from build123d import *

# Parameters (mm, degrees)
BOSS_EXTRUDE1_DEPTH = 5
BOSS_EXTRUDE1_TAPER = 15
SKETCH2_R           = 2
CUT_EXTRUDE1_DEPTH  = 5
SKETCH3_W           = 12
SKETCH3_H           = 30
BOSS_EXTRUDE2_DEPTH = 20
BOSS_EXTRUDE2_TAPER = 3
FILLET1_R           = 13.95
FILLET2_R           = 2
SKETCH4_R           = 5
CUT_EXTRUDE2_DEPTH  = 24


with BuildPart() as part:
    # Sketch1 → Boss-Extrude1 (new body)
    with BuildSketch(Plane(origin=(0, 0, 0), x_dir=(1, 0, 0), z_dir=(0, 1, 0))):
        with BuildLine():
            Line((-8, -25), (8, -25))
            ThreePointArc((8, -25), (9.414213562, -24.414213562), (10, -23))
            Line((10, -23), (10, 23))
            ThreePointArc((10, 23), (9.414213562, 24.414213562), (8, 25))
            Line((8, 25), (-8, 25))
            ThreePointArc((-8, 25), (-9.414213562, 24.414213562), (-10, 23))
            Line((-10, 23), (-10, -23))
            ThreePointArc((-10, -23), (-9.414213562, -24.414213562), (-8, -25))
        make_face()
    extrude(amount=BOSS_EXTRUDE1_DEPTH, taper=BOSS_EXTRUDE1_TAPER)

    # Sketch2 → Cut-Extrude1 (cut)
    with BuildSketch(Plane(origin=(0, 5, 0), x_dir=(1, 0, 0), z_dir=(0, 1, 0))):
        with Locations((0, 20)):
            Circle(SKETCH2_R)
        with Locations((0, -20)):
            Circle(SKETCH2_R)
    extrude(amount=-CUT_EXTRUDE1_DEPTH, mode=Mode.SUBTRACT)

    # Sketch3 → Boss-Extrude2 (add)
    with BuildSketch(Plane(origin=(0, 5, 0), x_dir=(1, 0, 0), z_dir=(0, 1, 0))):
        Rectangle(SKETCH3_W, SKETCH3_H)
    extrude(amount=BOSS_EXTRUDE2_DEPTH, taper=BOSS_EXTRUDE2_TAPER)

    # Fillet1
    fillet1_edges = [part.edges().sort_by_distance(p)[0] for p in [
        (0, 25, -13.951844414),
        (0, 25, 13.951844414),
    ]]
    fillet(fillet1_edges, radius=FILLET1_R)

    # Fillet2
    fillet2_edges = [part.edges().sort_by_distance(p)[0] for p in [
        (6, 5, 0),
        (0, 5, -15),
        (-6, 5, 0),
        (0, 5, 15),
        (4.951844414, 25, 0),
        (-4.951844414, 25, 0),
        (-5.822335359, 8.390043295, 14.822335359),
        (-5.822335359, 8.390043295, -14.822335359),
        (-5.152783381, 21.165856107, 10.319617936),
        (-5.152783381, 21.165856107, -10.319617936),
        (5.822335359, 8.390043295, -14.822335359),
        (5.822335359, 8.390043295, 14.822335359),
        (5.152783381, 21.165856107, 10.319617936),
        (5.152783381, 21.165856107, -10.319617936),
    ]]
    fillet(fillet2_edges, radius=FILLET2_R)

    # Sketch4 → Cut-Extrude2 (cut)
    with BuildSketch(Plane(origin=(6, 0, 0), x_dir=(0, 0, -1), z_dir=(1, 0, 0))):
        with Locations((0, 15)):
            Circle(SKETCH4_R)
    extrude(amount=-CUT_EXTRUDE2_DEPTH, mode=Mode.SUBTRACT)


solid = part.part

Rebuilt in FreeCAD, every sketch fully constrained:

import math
import FreeCAD as App
import Part
import Sketcher
from FreeCAD import Vector
Q = App.Units.Quantity


def edges_at(feature, points):
    """Names of the edges that pass closest to the given points."""
    edges = feature.Shape.Edges
    near = lambda p: min(range(len(edges)), key=lambda i: edges[i].distToShape(Part.Vertex(*p))[0])
    return sorted({f"Edge{near(p) + 1}" for p in points})


def add_polygon(sketch, points):
    """Adds a closed chain of lines whose ends are joined by coincident constraints."""
    first, n = sketch.GeometryCount, len(points)
    for a, b in zip(points, points[1:] + points[:1]):
        sketch.addGeometry(Part.LineSegment(App.Vector(*a, 0), App.Vector(*b, 0)), False)
    for i in range(n):
        sketch.addConstraint(Sketcher.Constraint("Coincident", first + i, 2, first + (i + 1) % n, 1))

doc = App.newDocument("Part")
body = doc.addObject("PartDesign::Body", "Body")

# Sketch on XZ plane
sketch1 = doc.addObject("Sketcher::SketchObject", "Sketch")
body.addObject(sketch1)
sketch1.AttachmentSupport = (doc.XZ_Plane, [""])
sketch1.MapMode = "FlatFace"
sketch1.addGeometry([
    Part.LineSegment(Vector(-8, 25, 0), Vector(8, 25, 0)),  # 0
    Part.ArcOfCircle(Part.Circle(Vector(8, 23, 0), Vector(0, 0, 1), 2), math.radians(0), math.radians(90)),  # 1
    Part.LineSegment(Vector(10, 23, 0), Vector(10, -23, 0)),  # 2
    Part.ArcOfCircle(Part.Circle(Vector(8, -23, 0), Vector(0, 0, 1), 2), math.radians(-90), math.radians(0)),  # 3
    Part.LineSegment(Vector(8, -25, 0), Vector(-8, -25, 0)),  # 4
    Part.ArcOfCircle(Part.Circle(Vector(-8, -23, 0), Vector(0, 0, 1), 2), math.radians(-180), math.radians(-90)),  # 5
    Part.LineSegment(Vector(-10, -23, 0), Vector(-10, 23, 0)),  # 6
    Part.ArcOfCircle(Part.Circle(Vector(-8, 23, 0), Vector(0, 0, 1), 2), math.radians(90), math.radians(180)),  # 7
], False)
sketch1.addConstraint([
    Sketcher.Constraint("Tangent", 0, 2, 1, 2),
    Sketcher.Constraint("Tangent", 1, 1, 2, 1),
    Sketcher.Constraint("Tangent", 2, 2, 3, 2),
    Sketcher.Constraint("Tangent", 3, 1, 4, 1),
    Sketcher.Constraint("Tangent", 4, 2, 5, 2),
    Sketcher.Constraint("Tangent", 5, 1, 6, 1),
    Sketcher.Constraint("Tangent", 6, 2, 7, 2),
    Sketcher.Constraint("Tangent", 7, 1, 0, 1),
    Sketcher.Constraint("Horizontal", 0),
    Sketcher.Constraint("Vertical", 2),
    Sketcher.Constraint("Horizontal", 4),
    Sketcher.Constraint("Vertical", 6),
    Sketcher.Constraint("Equal", 1, 3),
    Sketcher.Constraint("Equal", 3, 5),
    Sketcher.Constraint("Equal", 5, 7),
    Sketcher.Constraint("Symmetric", 1, 3, 5, 3, -1, 1),
    Sketcher.Constraint("Radius", 1, Q("2 mm")),
    Sketcher.Constraint("DistanceX", 0, 1, 0, 2, Q("16 mm")),
    Sketcher.Constraint("DistanceY", 2, 2, 2, 1, Q("46 mm")),
])
pad1 = doc.addObject("PartDesign::Pad", "Pad")
body.addObject(pad1)
pad1.Profile = sketch1
pad1.Length = 5
pad1.Reversed = True
pad1.TaperAngle = -15

# Sketch on XZ plane
sketch2 = doc.addObject("Sketcher::SketchObject", "Sketch001")
body.addObject(sketch2)
sketch2.AttachmentSupport = (doc.XZ_Plane, [""])
sketch2.MapMode = "FlatFace"
sketch2.AttachmentOffset = App.Placement(Vector(0, 0, -5), App.Rotation())
sketch2.addGeometry([
    Part.Circle(Vector(0, -20, 0), Vector(0, 0, 1), 2),
    Part.Circle(Vector(0, 20, 0), Vector(0, 0, 1), 2),
], False)
sketch2.addConstraint([
    Sketcher.Constraint("Equal", 0, 1),
    Sketcher.Constraint("Symmetric", 0, 3, 1, 3, -1, 1),
    Sketcher.Constraint("PointOnObject", 0, 3, -2),
    Sketcher.Constraint("Diameter", 0, Q("4 mm")),
    Sketcher.Constraint("DistanceY", 0, 3, -1, 1, Q("20 mm")),
])
pocket1 = doc.addObject("PartDesign::Pocket", "Pocket")
body.addObject(pocket1)
pocket1.Profile = sketch2
pocket1.Length = 5
pocket1.Reversed = True

# Sketch on XZ plane
sketch3 = doc.addObject("Sketcher::SketchObject", "Sketch002")
body.addObject(sketch3)
sketch3.AttachmentSupport = (doc.XZ_Plane, [""])
sketch3.MapMode = "FlatFace"
sketch3.AttachmentOffset = App.Placement(Vector(0, 0, -5), App.Rotation())
add_polygon(sketch3, [(-6, -15), (-6, 15), (6, 15), (6, -15)])  # lines 0-3
sketch3.addConstraint([
    Sketcher.Constraint("Vertical", 0),
    Sketcher.Constraint("Horizontal", 1),
    Sketcher.Constraint("Vertical", 2),
    Sketcher.Constraint("Horizontal", 3),
    Sketcher.Constraint("Symmetric", 0, 2, 2, 2, -1, 1),
    Sketcher.Constraint("DistanceX", 1, 1, 1, 2, Q("12 mm")),
    Sketcher.Constraint("DistanceY", 0, 1, 0, 2, Q("30 mm")),
])
pad2 = doc.addObject("PartDesign::Pad", "Pad001")
body.addObject(pad2)
pad2.Profile = sketch3
pad2.Length = 20
pad2.Reversed = True
pad2.TaperAngle = -3
doc.recompute()

fillet = doc.addObject("PartDesign::Fillet", "Fillet")
body.addObject(fillet)
fillet.Base = (pad2, edges_at(pad2, [(0, 25, -13.952), (0, 25, 13.952)]))
fillet.Radius = 13.95
doc.recompute()

fillet2 = doc.addObject("PartDesign::Fillet", "Fillet001")
body.addObject(fillet2)
fillet2.Base = (fillet, edges_at(fillet, [
    (6, 5, 0),
    (0, 5, -15),
    (-6, 5, 0),
    (0, 5, 15),
    (4.952, 25, 0),
    (-4.952, 25, 0),
    (-5.822, 8.39, 14.822),
    (-5.822, 8.39, -14.822),
    (-5.153, 21.166, 10.32),
    (-5.153, 21.166, -10.32),
    (5.822, 8.39, -14.822),
    (5.822, 8.39, 14.822),
    (5.153, 21.166, 10.32),
    (5.153, 21.166, -10.32),
]))
fillet2.Radius = 2

# Sketch on YZ plane
sketch4 = doc.addObject("Sketcher::SketchObject", "Sketch003")
body.addObject(sketch4)
sketch4.AttachmentSupport = (doc.YZ_Plane, [""])
sketch4.MapMode = "FlatFace"
sketch4.AttachmentOffset = App.Placement(Vector(0, 0, 6), App.Rotation())
sketch4.addGeometry(Part.Circle(Vector(15, 0, 0), Vector(0, 0, 1), 5), False)
sketch4.addConstraint([
    Sketcher.Constraint("PointOnObject", 0, 3, -1),
    Sketcher.Constraint("Diameter", 0, Q("10 mm")),
    Sketcher.Constraint("DistanceX", -1, 1, 0, 3, Q("15 mm")),
])
pocket2 = doc.addObject("PartDesign::Pocket", "Pocket001")
body.addObject(pocket2)
pocket2.Profile = sketch4
pocket2.Length = 24

doc.recompute()
